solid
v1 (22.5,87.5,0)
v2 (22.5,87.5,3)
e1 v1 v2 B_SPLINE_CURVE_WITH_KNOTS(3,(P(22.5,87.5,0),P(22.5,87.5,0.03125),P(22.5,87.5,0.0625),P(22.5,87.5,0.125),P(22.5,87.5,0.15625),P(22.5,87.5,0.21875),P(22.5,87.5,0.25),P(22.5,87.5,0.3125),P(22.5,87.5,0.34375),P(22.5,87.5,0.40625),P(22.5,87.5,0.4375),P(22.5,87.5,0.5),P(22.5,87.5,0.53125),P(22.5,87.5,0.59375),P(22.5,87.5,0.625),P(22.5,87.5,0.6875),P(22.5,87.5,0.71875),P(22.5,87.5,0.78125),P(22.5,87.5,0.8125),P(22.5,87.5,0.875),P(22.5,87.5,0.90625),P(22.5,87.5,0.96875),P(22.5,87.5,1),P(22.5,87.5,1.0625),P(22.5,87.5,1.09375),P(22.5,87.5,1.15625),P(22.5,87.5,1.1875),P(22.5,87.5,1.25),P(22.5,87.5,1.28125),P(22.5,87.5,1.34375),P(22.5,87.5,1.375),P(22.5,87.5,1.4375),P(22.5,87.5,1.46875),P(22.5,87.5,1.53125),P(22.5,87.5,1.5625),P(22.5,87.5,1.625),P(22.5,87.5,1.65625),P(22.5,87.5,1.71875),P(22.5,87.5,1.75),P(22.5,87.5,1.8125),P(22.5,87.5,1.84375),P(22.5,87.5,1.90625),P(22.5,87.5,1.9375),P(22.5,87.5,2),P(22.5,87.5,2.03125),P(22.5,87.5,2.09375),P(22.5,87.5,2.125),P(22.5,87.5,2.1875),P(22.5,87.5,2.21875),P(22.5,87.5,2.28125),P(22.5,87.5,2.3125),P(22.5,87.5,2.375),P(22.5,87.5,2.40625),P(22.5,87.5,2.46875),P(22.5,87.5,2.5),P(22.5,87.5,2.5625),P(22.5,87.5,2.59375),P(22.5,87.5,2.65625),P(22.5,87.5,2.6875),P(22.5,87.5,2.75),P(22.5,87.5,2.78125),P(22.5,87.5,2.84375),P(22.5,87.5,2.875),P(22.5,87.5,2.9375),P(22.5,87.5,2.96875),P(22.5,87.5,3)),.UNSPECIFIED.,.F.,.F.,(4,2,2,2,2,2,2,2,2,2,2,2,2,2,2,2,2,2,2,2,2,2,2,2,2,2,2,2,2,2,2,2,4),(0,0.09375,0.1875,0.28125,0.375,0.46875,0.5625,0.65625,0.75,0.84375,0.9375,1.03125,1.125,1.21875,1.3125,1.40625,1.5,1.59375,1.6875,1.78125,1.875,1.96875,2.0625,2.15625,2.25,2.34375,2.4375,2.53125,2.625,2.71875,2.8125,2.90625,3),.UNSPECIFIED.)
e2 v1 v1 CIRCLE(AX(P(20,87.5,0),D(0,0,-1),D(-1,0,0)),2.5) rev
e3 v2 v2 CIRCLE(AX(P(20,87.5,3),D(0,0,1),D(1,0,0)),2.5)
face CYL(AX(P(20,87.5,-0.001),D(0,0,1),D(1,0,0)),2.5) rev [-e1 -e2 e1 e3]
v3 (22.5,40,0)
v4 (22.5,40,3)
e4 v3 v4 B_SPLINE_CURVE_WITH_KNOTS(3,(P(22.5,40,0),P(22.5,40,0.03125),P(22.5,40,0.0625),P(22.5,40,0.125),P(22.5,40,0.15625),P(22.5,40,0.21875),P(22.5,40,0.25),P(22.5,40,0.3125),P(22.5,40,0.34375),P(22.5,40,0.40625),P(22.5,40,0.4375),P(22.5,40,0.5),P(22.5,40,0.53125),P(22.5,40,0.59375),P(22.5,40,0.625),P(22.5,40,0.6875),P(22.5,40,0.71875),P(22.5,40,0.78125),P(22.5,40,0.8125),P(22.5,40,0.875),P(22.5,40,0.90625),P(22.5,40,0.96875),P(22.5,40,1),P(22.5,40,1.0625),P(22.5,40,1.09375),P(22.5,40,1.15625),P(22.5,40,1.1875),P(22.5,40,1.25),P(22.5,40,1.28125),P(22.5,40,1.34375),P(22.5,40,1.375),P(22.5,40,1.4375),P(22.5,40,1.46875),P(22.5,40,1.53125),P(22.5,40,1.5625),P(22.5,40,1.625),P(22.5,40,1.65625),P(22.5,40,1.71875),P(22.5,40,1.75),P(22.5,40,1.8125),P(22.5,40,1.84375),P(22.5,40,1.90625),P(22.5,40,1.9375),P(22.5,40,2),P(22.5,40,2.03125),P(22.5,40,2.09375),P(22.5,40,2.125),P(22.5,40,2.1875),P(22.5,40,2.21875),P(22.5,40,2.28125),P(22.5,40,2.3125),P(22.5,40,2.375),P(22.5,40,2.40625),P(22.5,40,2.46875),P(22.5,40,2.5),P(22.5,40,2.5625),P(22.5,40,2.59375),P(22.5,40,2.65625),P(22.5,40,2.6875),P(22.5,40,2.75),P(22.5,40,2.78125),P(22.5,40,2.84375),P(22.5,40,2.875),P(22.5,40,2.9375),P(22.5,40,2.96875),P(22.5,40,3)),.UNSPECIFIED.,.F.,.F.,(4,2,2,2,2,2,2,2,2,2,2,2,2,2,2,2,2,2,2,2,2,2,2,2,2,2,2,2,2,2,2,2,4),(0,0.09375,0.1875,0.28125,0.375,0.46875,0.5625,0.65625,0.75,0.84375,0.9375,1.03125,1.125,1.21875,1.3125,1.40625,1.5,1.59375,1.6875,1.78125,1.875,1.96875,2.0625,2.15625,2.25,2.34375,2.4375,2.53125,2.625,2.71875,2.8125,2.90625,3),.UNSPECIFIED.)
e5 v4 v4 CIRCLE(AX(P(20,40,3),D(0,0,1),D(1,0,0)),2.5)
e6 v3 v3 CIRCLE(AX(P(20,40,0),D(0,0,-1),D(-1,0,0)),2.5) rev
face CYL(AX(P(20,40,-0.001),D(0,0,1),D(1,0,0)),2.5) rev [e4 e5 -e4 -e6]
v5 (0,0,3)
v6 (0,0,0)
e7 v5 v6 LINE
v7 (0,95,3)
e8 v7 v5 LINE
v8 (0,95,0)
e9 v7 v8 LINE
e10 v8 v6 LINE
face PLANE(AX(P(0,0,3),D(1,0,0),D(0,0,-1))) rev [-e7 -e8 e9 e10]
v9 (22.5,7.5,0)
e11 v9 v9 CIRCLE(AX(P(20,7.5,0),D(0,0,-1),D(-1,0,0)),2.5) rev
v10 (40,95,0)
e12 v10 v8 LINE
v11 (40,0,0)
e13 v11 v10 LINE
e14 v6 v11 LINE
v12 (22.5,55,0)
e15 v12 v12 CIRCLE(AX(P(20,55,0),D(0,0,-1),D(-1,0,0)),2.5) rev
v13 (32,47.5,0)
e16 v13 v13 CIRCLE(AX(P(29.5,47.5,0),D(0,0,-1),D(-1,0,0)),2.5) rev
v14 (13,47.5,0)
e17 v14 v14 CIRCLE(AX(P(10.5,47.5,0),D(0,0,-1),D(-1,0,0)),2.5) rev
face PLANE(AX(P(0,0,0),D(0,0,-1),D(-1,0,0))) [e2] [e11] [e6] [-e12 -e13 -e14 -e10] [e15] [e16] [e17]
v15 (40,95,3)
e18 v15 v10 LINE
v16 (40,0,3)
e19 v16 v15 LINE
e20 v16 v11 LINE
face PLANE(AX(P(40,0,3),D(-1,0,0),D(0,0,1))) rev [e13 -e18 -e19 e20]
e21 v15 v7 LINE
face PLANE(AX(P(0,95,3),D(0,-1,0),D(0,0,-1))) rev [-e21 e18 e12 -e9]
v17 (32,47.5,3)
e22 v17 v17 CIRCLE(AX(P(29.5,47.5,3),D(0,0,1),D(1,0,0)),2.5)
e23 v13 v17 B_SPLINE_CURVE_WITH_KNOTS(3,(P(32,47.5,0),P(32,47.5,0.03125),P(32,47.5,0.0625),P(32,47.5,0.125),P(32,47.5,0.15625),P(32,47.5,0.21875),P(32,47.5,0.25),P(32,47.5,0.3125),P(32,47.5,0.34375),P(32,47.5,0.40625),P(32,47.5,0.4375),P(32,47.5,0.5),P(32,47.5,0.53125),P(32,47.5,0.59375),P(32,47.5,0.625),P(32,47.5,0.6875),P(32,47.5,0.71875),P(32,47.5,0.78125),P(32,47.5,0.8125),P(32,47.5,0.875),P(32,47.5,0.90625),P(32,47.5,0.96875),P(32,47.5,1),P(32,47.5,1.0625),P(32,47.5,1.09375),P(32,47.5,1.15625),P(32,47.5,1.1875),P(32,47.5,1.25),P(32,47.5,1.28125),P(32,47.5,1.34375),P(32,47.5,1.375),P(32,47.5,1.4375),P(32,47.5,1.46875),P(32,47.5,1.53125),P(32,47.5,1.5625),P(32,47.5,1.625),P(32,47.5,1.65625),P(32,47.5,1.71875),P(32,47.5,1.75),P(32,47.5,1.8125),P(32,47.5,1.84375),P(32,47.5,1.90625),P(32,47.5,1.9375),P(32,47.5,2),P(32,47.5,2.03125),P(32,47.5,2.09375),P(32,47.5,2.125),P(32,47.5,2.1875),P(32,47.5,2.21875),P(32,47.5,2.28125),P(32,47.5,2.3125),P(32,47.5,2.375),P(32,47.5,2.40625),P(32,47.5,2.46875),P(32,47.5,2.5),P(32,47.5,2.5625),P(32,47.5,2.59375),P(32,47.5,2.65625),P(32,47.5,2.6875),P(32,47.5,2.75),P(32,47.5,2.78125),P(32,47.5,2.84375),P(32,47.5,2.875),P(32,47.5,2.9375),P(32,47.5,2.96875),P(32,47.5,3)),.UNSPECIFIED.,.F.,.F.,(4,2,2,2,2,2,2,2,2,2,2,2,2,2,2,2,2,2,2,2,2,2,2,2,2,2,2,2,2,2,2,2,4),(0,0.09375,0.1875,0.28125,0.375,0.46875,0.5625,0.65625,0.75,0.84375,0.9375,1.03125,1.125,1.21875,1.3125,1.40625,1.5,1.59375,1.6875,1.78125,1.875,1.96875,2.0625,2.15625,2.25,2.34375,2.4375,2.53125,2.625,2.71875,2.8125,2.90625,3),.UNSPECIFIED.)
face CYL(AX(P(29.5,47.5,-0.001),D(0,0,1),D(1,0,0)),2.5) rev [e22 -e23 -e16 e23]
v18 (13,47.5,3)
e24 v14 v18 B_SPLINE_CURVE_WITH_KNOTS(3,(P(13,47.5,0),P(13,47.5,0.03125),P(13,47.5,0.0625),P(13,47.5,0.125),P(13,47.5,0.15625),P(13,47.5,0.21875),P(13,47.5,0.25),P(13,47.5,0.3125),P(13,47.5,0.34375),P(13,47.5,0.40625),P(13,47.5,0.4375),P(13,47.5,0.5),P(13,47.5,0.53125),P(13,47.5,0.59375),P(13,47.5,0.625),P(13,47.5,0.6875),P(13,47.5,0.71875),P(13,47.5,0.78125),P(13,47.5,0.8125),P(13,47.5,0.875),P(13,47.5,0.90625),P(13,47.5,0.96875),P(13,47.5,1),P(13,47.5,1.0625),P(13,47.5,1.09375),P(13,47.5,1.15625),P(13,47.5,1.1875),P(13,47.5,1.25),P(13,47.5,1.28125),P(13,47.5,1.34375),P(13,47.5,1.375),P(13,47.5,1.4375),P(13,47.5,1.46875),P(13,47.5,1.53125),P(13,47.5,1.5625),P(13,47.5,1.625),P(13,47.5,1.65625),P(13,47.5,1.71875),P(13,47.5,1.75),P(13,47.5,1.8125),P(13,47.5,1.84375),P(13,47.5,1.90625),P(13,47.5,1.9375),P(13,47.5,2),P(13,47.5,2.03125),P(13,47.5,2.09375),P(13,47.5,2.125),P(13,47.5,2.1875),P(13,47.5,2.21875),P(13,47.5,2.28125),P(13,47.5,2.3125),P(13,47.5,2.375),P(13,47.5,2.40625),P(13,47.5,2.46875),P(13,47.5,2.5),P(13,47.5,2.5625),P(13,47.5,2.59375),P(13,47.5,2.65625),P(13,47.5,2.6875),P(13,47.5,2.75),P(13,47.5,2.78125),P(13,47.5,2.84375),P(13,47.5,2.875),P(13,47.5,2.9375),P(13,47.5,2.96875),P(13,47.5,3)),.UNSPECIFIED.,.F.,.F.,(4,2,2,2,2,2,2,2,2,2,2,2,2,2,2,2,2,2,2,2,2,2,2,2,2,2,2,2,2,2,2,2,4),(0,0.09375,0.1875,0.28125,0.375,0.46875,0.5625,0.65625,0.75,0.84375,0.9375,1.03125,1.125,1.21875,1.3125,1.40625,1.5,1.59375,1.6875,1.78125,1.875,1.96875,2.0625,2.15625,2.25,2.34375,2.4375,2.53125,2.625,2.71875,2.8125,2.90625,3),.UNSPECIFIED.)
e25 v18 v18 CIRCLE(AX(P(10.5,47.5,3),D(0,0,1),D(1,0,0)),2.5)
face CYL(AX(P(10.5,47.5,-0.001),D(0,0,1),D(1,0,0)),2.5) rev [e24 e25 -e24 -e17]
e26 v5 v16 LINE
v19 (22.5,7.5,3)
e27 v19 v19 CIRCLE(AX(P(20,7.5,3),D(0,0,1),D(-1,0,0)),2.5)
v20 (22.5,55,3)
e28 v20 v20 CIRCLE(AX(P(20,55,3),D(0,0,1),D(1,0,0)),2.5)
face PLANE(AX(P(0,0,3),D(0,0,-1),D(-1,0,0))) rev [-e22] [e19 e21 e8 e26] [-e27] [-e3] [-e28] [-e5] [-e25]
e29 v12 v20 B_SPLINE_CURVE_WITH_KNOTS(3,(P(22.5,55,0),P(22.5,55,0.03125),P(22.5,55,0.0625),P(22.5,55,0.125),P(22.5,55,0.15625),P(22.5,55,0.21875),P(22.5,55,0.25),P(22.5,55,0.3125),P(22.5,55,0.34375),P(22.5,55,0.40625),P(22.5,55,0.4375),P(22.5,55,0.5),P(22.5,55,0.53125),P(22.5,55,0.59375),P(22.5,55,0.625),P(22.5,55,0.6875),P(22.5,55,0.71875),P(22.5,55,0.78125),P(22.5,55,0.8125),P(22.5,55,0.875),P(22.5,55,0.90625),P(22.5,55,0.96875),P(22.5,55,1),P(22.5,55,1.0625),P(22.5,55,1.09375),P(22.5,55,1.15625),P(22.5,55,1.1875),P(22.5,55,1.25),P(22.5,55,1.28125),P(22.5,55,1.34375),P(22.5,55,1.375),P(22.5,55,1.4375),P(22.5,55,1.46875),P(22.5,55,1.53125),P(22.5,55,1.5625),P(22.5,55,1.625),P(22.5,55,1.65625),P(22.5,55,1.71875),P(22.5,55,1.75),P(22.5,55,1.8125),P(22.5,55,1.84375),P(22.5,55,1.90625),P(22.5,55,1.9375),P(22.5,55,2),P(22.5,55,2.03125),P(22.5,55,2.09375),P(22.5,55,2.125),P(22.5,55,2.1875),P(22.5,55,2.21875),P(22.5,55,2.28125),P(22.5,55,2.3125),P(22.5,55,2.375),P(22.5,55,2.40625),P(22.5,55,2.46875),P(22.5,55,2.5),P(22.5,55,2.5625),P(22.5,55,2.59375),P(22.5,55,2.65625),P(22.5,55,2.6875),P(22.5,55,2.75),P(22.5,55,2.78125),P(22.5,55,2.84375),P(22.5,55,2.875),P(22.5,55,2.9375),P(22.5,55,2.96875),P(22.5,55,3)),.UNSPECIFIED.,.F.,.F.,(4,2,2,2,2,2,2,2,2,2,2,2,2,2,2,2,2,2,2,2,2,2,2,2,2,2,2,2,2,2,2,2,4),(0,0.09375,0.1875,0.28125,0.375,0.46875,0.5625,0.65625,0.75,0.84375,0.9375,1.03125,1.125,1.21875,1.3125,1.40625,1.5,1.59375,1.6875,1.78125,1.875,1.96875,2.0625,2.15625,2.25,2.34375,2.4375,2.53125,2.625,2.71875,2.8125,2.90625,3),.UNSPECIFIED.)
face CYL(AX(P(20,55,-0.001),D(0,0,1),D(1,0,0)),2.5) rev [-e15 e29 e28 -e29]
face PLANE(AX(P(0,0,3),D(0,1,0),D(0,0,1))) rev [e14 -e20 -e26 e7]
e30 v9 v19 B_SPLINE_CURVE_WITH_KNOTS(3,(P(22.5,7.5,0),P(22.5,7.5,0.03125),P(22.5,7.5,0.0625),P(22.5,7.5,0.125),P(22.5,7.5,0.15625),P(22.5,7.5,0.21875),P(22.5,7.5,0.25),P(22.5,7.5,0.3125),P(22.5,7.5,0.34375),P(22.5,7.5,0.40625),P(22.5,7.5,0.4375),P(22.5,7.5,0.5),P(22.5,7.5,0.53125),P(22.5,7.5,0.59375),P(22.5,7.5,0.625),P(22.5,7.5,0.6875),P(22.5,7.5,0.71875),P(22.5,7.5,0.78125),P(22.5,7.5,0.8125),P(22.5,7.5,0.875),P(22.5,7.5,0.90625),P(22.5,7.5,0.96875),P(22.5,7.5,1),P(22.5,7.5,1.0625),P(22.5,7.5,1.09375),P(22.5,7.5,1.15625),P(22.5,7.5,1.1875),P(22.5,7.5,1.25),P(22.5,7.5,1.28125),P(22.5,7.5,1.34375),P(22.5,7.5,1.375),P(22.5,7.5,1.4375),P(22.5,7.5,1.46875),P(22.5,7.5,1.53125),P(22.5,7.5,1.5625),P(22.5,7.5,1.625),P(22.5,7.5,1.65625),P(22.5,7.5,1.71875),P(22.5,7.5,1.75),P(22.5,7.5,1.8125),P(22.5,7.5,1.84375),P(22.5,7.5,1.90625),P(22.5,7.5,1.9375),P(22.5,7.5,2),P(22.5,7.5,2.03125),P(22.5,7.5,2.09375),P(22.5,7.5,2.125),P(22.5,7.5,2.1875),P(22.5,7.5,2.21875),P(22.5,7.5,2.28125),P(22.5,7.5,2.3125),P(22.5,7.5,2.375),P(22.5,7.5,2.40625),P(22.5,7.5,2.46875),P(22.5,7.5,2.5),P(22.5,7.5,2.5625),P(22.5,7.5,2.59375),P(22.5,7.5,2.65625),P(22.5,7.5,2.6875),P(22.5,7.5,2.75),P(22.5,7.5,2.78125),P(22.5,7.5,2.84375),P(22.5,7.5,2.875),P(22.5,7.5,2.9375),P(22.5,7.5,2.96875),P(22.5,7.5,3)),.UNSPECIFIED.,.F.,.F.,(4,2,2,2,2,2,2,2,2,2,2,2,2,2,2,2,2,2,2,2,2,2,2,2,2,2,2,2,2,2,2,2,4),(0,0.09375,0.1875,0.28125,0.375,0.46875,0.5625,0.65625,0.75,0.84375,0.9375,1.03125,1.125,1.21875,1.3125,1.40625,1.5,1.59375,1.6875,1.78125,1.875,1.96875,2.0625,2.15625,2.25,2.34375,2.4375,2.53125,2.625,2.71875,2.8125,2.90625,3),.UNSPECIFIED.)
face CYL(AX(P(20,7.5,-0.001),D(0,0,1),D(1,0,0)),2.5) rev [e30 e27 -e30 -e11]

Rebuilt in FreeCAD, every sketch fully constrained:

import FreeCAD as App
import Part
import Sketcher


def add_polygon(sketch, points):
    """Adds a closed chain of lines whose ends are joined by coincident constraints."""
    first, n = sketch.GeometryCount, len(points)
    for a, b in zip(points, points[1:] + points[:1]):
        sketch.addGeometry(Part.LineSegment(App.Vector(*a, 0), App.Vector(*b, 0)), False)
    for i in range(n):
        sketch.addConstraint(Sketcher.Constraint("Coincident", first + i, 2, first + (i + 1) % n, 1))

doc = App.newDocument("Part")
params = doc.addObject("Spreadsheet::Sheet", "Params")
for row, (alias, value) in enumerate([
    ("sketch1_width", "40 mm"),
    ("sketch1_height", "95 mm"),
    ("pad1_length", "3 mm"),
    ("sketch2_diameter", "5 mm"),
    ("sketch3_diameter", "5 mm"),
    ("sketch4_diameter", "5 mm"),
    ("sketch5_diameter", "5 mm"),
    ("sketch6_diameter", "5 mm"),
    ("sketch7_diameter", "5 mm"),
], start=1):
    params.set(f"A{row}", alias)
    params.set(f"B{row}", "=" + value)
    params.setAlias(f"B{row}", alias)

body = doc.addObject("PartDesign::Body", "Body")

sketch1 = doc.addObject("Sketcher::SketchObject", "Sketch")
body.addObject(sketch1)
sketch1.AttachmentSupport = (doc.XY_Plane, [""])
sketch1.MapMode = "FlatFace"
add_polygon(sketch1, [(0, 95), (0, 0), (40, 0), (40, 95)])
sketch1.addConstraint([
    Sketcher.Constraint("Vertical", 0),
    Sketcher.Constraint("Horizontal", 1),
    Sketcher.Constraint("Vertical", 2),
    Sketcher.Constraint("Horizontal", 3),
    Sketcher.Constraint("Coincident", 0, 2, -1, 1),
    Sketcher.Constraint("DistanceX", 1, 1, 1, 2, 40.0),
    Sketcher.Constraint("DistanceY", 0, 2, 0, 1, 95.0),
])
sketch1.setExpression("Constraints[9]", "Params.sketch1_width")
sketch1.setExpression("Constraints[10]", "Params.sketch1_height")
pad1 = doc.addObject("PartDesign::Pad", "Pad")
body.addObject(pad1)
pad1.Profile = sketch1
pad1.setExpression("Length", "Params.pad1_length")

sketch2 = doc.addObject("Sketcher::SketchObject", "Sketch001")
body.addObject(sketch2)
sketch2.AttachmentSupport = (doc.XY_Plane, [""])
sketch2.MapMode = "FlatFace"
sketch2.AttachmentOffset = App.Placement(App.Vector(0, 0, 3), App.Rotation())
sketch2.addGeometry(Part.Circle(App.Vector(20, 87.5, 0), App.Vector(0, 0, 1), 2.5), False)
sketch2.addConstraint([
    Sketcher.Constraint("Diameter", 0, 5.0),
    Sketcher.Constraint("DistanceX", -1, 1, 0, 3, 20.0),
    Sketcher.Constraint("DistanceY", -1, 1, 0, 3, 87.5),
])
sketch2.setExpression("Constraints[0]", "Params.sketch2_diameter")
pocket1 = doc.addObject("PartDesign::Pocket", "Pocket")
body.addObject(pocket1)
pocket1.Profile = sketch2
pocket1.Type = "UpToFirst"

sketch3 = doc.addObject("Sketcher::SketchObject", "Sketch002")
body.addObject(sketch3)
sketch3.AttachmentSupport = (doc.XY_Plane, [""])
sketch3.MapMode = "FlatFace"
sketch3.AttachmentOffset = App.Placement(App.Vector(0, 0, 3), App.Rotation())
sketch3.addGeometry(Part.Circle(App.Vector(20, 7.5, 0), App.Vector(0, 0, 1), 2.5), False)
sketch3.addConstraint([
    Sketcher.Constraint("Diameter", 0, 5.0),
    Sketcher.Constraint("DistanceX", -1, 1, 0, 3, 20.0),
    Sketcher.Constraint("DistanceY", -1, 1, 0, 3, 7.5),
])
sketch3.setExpression("Constraints[0]", "Params.sketch3_diameter")
pocket2 = doc.addObject("PartDesign::Pocket", "Pocket001")
body.addObject(pocket2)
pocket2.Profile = sketch3
pocket2.Type = "UpToFirst"

sketch4 = doc.addObject("Sketcher::SketchObject", "Sketch003")
body.addObject(sketch4)
sketch4.AttachmentSupport = (doc.XY_Plane, [""])
sketch4.MapMode = "FlatFace"
sketch4.AttachmentOffset = App.Placement(App.Vector(0, 0, 3), App.Rotation())
sketch4.addGeometry(Part.Circle(App.Vector(10.5, 47.5, 0), App.Vector(0, 0, 1), 2.5), False)
sketch4.addConstraint([
    Sketcher.Constraint("Diameter", 0, 5.0),
    Sketcher.Constraint("DistanceX", -1, 1, 0, 3, 10.5),
    Sketcher.Constraint("DistanceY", -1, 1, 0, 3, 47.5),
])
sketch4.setExpression("Constraints[0]", "Params.sketch4_diameter")
pocket3 = doc.addObject("PartDesign::Pocket", "Pocket002")
body.addObject(pocket3)
pocket3.Profile = sketch4
pocket3.Type = "UpToFirst"

sketch5 = doc.addObject("Sketcher::SketchObject", "Sketch004")
body.addObject(sketch5)
sketch5.AttachmentSupport = (doc.XY_Plane, [""])
sketch5.MapMode = "FlatFace"
sketch5.AttachmentOffset = App.Placement(App.Vector(0, 0, 3), App.Rotation())
sketch5.addGeometry(Part.Circle(App.Vector(29.5, 47.5, 0), App.Vector(0, 0, 1), 2.5), False)
sketch5.addConstraint([
    Sketcher.Constraint("Diameter", 0, 5.0),
    Sketcher.Constraint("DistanceX", -1, 1, 0, 3, 29.5),
    Sketcher.Constraint("DistanceY", -1, 1, 0, 3, 47.5),
])
sketch5.setExpression("Constraints[0]", "Params.sketch5_diameter")
pocket4 = doc.addObject("PartDesign::Pocket", "Pocket003")
body.addObject(pocket4)
pocket4.Profile = sketch5
pocket4.Type = "UpToFirst"

sketch6 = doc.addObject("Sketcher::SketchObject", "Sketch005")
body.addObject(sketch6)
sketch6.AttachmentSupport = (doc.XY_Plane, [""])
sketch6.MapMode = "FlatFace"
sketch6.AttachmentOffset = App.Placement(App.Vector(0, 0, 3), App.Rotation())
sketch6.addGeometry(Part.Circle(App.Vector(20, 55, 0), App.Vector(0, 0, 1), 2.5), False)
sketch6.addConstraint([
    Sketcher.Constraint("Diameter", 0, 5.0),
    Sketcher.Constraint("DistanceX", -1, 1, 0, 3, 20.0),
    Sketcher.Constraint("DistanceY", -1, 1, 0, 3, 55.0),
])
sketch6.setExpression("Constraints[0]", "Params.sketch6_diameter")
pocket5 = doc.addObject("PartDesign::Pocket", "Pocket004")
body.addObject(pocket5)
pocket5.Profile = sketch6
pocket5.Type = "UpToFirst"

sketch7 = doc.addObject("Sketcher::SketchObject", "Sketch006")
body.addObject(sketch7)
sketch7.AttachmentSupport = (doc.XY_Plane, [""])
sketch7.MapMode = "FlatFace"
sketch7.AttachmentOffset = App.Placement(App.Vector(0, 0, 3), App.Rotation())
sketch7.addGeometry(Part.Circle(App.Vector(20, 40, 0), App.Vector(0, 0, 1), 2.5), False)
sketch7.addConstraint([
    Sketcher.Constraint("Diameter", 0, 5.0),
    Sketcher.Constraint("DistanceX", -1, 1, 0, 3, 20.0),
    Sketcher.Constraint("DistanceY", -1, 1, 0, 3, 40.0),
])
sketch7.setExpression("Constraints[0]", "Params.sketch7_diameter")
pocket6 = doc.addObject("PartDesign::Pocket", "Pocket005")
body.addObject(pocket6)
pocket6.Profile = sketch7
pocket6.Type = "UpToFirst"

doc.recompute()
